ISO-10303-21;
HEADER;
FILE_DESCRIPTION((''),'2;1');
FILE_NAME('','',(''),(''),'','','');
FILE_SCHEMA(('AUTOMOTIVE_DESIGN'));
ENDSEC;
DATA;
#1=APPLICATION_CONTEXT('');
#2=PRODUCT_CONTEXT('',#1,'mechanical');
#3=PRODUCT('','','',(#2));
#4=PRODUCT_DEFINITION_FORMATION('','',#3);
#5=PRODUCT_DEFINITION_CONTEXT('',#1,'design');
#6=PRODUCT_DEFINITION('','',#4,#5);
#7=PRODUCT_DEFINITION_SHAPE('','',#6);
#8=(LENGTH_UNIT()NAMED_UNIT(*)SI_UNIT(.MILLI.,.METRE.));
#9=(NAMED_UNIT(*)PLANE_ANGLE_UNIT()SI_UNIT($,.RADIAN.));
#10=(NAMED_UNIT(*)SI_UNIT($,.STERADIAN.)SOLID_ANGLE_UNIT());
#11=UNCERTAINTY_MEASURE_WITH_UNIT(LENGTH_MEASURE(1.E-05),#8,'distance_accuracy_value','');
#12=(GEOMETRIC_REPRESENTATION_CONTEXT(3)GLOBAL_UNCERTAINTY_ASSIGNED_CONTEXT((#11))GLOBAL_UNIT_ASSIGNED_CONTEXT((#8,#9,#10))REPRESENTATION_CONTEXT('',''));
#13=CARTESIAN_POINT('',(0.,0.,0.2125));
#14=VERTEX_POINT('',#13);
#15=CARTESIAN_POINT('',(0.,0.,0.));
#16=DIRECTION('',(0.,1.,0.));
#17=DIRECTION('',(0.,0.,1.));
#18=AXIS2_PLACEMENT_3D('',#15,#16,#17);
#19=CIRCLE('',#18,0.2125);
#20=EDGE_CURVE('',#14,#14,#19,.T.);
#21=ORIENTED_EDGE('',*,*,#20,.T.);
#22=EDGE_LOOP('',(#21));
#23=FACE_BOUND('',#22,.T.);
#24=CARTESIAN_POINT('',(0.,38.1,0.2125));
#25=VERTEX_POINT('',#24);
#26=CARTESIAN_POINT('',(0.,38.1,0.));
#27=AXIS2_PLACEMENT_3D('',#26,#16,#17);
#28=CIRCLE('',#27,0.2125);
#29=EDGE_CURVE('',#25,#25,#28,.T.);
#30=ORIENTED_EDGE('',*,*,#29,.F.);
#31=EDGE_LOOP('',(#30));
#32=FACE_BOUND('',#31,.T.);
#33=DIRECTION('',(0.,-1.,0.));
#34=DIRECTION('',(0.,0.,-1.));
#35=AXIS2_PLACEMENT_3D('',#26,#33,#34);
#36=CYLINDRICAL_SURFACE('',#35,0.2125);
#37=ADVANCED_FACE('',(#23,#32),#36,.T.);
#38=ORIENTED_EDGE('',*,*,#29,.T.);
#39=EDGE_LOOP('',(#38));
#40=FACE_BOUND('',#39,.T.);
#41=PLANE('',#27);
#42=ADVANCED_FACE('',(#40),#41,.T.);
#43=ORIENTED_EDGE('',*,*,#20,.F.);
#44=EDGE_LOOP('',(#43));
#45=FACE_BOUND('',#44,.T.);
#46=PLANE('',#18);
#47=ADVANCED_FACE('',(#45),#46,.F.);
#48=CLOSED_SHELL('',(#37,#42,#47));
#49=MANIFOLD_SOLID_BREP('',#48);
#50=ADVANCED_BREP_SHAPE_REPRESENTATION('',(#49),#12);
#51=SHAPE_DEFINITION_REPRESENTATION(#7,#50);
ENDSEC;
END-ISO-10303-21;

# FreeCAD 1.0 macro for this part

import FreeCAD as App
import Part
import Sketcher
from FreeCAD import Vector
Q = App.Units.Quantity

doc = App.newDocument("Part")
body = doc.addObject("PartDesign::Body", "Body")

sketch1 = doc.addObject("Sketcher::SketchObject", "Sketch")
body.addObject(sketch1)
sketch1.AttachmentSupport = (doc.XZ_Plane, [""])
sketch1.MapMode = "FlatFace"
sketch1.addGeometry(Part.Circle(Vector(0, 0, 0), Vector(0, 0, 1), 0.21), False)
sketch1.addConstraint(Sketcher.Constraint("Coincident", 0, 3, -1, 1))
sketch1.addConstraint(Sketcher.Constraint("Diameter", 0, 0.425))
pad1 = doc.addObject("PartDesign::Pad", "Pad")
body.addObject(pad1)
pad1.Profile = sketch1
pad1.Length = Q("1.5 in")
pad1.Reversed = True

doc.recompute()
